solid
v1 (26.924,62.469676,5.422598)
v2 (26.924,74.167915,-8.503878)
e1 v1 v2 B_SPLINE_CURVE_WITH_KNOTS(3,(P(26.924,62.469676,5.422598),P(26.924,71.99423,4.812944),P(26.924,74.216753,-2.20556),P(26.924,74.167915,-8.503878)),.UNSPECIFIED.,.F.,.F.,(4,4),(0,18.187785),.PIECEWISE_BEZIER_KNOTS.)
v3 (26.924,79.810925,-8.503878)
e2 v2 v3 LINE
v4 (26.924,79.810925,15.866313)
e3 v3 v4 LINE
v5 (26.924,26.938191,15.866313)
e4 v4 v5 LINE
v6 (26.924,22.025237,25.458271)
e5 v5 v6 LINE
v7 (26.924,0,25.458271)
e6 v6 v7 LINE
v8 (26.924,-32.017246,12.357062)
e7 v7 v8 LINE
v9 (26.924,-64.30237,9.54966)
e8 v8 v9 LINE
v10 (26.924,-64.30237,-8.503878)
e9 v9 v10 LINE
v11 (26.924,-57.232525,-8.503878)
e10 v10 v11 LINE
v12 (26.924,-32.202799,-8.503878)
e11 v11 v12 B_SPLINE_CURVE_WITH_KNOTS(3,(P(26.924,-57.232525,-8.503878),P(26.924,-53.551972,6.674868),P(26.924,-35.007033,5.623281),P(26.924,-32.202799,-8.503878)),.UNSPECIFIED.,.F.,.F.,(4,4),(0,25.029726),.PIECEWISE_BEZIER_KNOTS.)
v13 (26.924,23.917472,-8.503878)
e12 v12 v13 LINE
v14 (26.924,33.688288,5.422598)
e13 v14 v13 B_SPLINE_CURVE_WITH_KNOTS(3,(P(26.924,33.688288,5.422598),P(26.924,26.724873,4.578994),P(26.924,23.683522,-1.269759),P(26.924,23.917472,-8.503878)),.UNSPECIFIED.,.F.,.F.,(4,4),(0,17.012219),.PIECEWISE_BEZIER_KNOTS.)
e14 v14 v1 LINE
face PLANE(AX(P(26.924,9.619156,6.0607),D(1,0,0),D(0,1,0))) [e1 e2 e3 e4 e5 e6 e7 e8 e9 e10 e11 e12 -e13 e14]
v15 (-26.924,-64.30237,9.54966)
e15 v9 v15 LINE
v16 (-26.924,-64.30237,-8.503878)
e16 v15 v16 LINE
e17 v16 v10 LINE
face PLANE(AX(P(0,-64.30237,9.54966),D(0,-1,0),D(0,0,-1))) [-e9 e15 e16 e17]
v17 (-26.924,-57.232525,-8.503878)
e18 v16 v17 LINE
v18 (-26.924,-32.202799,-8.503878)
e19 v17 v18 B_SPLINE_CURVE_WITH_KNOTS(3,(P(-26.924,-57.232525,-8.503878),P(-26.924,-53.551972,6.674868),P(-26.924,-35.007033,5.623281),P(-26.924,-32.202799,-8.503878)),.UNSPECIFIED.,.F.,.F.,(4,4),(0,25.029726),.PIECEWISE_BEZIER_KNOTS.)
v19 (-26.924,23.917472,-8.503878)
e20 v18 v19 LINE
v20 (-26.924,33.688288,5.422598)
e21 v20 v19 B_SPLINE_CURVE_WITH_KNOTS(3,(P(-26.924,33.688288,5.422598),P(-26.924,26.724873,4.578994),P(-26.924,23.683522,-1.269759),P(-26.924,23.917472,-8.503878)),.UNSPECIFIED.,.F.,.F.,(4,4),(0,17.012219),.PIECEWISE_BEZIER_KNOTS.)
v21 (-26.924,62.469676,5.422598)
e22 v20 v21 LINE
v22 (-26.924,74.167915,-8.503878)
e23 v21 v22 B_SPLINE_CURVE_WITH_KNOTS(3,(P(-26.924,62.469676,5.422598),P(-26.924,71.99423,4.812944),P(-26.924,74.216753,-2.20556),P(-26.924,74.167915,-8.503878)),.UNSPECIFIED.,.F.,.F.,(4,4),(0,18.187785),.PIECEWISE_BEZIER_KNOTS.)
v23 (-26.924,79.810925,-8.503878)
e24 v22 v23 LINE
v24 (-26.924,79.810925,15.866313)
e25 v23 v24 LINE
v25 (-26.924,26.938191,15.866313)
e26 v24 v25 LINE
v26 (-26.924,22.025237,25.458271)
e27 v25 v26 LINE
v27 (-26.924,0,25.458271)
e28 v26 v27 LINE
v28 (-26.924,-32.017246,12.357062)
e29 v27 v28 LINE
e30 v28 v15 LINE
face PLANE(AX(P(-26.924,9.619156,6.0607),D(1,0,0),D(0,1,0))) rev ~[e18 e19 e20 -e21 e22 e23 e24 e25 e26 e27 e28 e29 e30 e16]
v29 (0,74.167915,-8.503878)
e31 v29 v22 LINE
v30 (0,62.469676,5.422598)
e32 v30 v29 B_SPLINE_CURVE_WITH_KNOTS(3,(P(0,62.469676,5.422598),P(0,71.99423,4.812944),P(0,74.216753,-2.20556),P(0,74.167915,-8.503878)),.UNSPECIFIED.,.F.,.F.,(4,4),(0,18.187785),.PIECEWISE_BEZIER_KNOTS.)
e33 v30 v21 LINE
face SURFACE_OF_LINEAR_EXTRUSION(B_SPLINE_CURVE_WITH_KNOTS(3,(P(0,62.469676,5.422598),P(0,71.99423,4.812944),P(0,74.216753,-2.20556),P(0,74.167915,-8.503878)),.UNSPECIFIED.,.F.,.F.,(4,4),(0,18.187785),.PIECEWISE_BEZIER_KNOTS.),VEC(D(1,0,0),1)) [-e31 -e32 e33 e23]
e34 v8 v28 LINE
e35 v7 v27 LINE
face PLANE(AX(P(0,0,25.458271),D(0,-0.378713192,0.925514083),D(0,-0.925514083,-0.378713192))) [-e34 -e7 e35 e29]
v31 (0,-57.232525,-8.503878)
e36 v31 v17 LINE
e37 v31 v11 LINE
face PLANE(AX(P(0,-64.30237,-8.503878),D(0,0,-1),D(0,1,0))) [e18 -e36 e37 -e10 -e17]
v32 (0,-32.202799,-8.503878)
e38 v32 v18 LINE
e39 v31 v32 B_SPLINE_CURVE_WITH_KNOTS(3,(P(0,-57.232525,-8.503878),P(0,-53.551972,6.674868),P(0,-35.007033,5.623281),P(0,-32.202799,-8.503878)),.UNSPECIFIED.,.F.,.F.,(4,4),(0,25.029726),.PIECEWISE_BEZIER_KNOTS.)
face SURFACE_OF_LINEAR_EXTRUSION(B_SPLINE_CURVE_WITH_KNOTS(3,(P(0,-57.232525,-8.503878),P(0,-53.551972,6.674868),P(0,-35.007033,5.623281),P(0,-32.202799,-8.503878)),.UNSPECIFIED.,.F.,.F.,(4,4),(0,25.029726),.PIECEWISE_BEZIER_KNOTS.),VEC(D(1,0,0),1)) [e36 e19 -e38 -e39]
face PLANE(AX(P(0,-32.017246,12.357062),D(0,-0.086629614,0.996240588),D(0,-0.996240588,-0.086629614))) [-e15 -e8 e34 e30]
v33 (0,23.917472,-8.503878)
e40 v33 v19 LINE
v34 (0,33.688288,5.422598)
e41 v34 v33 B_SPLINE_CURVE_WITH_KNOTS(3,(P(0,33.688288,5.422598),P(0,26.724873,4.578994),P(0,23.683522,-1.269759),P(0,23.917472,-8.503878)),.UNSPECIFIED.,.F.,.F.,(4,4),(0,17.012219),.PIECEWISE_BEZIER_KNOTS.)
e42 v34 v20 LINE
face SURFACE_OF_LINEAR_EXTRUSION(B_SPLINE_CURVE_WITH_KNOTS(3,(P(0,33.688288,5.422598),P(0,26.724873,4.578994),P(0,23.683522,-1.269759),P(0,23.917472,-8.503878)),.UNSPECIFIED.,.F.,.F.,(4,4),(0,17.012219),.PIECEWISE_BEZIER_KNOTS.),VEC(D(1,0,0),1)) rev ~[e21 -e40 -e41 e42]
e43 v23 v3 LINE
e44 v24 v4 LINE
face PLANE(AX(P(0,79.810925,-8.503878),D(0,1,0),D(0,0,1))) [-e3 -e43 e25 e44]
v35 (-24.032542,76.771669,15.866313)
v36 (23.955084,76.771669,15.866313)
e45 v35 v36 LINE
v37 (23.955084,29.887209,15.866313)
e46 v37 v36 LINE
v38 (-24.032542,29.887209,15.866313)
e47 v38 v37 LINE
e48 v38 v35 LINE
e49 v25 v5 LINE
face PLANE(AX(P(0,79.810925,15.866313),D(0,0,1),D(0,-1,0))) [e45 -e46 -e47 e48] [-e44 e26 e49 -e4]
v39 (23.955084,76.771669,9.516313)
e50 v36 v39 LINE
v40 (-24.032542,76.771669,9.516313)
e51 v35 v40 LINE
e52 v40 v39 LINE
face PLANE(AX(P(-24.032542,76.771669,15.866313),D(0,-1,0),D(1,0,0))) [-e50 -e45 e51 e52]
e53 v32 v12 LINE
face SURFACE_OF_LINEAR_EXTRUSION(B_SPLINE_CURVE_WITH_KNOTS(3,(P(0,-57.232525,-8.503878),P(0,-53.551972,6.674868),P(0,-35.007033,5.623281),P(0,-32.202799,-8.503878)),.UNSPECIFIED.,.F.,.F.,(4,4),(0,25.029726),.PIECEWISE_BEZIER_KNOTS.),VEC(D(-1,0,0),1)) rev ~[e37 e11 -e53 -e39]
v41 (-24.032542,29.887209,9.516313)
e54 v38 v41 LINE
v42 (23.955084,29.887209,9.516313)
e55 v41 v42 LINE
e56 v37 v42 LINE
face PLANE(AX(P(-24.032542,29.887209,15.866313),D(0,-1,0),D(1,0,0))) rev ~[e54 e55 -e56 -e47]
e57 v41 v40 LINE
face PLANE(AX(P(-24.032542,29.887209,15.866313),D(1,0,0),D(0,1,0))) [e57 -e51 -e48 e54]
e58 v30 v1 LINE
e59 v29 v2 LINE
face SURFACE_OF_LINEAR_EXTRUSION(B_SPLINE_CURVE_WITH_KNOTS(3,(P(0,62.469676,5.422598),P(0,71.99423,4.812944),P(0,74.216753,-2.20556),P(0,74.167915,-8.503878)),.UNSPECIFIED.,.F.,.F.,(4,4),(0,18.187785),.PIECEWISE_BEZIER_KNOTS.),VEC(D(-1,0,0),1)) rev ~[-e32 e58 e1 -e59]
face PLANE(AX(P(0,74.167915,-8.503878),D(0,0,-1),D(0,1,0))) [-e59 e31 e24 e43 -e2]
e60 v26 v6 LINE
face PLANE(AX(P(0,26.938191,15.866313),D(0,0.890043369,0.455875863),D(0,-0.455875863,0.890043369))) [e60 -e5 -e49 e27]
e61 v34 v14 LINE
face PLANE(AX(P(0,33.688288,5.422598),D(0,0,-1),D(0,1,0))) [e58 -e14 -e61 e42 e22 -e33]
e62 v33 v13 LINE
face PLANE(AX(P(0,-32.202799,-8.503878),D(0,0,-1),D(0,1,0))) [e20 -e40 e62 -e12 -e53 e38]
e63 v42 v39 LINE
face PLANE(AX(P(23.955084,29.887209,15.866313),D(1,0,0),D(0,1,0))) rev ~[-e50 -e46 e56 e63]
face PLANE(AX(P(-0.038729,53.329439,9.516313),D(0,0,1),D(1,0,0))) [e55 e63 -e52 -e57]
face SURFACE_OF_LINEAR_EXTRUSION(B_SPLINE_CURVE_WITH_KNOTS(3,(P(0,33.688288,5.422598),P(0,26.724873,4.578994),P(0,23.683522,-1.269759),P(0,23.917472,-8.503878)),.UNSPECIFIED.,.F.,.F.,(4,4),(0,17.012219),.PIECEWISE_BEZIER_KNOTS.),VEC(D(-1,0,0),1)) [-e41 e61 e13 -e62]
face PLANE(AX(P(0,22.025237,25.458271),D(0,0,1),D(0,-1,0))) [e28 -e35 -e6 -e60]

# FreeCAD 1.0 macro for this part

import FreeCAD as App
import Part
import Sketcher

V = App.Vector
Q = App.Units.Quantity

doc = App.newDocument("Part")
body = doc.addObject("PartDesign::Body", "Body")

# Sketch on YZ plane
sketch1 = doc.addObject("Sketcher::SketchObject", "Sketch")
body.addObject(sketch1)
sketch1.AttachmentSupport = (doc.YZ_Plane, [""])
sketch1.MapMode = "FlatFace"
sketch1.addGeometry([
    Part.LineSegment(V(-64.30237, 9.54966, 0), V(-64.30237, -8.503878, 0)),  # 0
    Part.LineSegment(V(-64.30237, -8.503878, 0), V(-57.232525, -8.503878, 0)),  # 1
    Part.BSplineCurve([V(-57.232525, -8.503878, 0), V(-53.551972, 6.674868, 0), V(-35.007033, 5.623281, 0), V(-32.202799, -8.503878, 0)], [4, 4], [0, 25.029726], False, 3, [1, 1, 1, 1], False),  # 2
    Part.LineSegment(V(-32.202799, -8.503878, 0), V(23.917472, -8.503878, 0)),  # 3
    Part.BSplineCurve([V(33.688288, 5.422598, 0), V(26.724873, 4.578994, 0), V(23.683522, -1.269759, 0), V(23.917472, -8.503878, 0)], [4, 4], [0, 17.012219], False, 3, [1, 1, 1, 1], False),  # 4
    Part.LineSegment(V(33.688288, 5.422598, 0), V(62.469676, 5.422598, 0)),  # 5
    Part.BSplineCurve([V(62.469676, 5.422598, 0), V(71.99423, 4.812944, 0), V(74.216753, -2.20556, 0), V(74.167915, -8.503878, 0)], [4, 4], [0, 18.187785], False, 3, [1, 1, 1, 1], False),  # 6
    Part.LineSegment(V(74.167915, -8.503878, 0), V(79.810925, -8.503878, 0)),  # 7
    Part.LineSegment(V(79.810925, -8.503878, 0), V(79.810925, 15.866313, 0)),  # 8
    Part.LineSegment(V(79.810925, 15.866313, 0), V(26.938191, 15.866313, 0)),  # 9
    Part.LineSegment(V(26.938191, 15.866313, 0), V(22.025237, 25.458271, 0)),  # 10
    Part.LineSegment(V(22.025237, 25.458271, 0), V(0, 25.458271, 0)),  # 11
    Part.LineSegment(V(0, 25.458271, 0), V(-32.017246, 12.357062, 0)),  # 12
    Part.LineSegment(V(-32.017246, 12.357062, 0), V(-64.30237, 9.54966, 0)),  # 13
], False)
sketch1.addConstraint([
    Sketcher.Constraint("Block", 2),
    Sketcher.Constraint("Block", 4),
    Sketcher.Constraint("Block", 6),
    Sketcher.Constraint("Coincident", 0, 2, 1, 1),
    Sketcher.Constraint("Coincident", 1, 2, 2, 1),
    Sketcher.Constraint("Coincident", 2, 2, 3, 1),
    Sketcher.Constraint("Coincident", 3, 2, 4, 2),
    Sketcher.Constraint("Coincident", 4, 1, 5, 1),
    Sketcher.Constraint("Coincident", 5, 2, 6, 1),
    Sketcher.Constraint("Coincident", 6, 2, 7, 1),
    Sketcher.Constraint("Coincident", 7, 2, 8, 1),
    Sketcher.Constraint("Coincident", 8, 2, 9, 1),
    Sketcher.Constraint("Coincident", 9, 2, 10, 1),
    Sketcher.Constraint("Coincident", 10, 2, 11, 1),
    Sketcher.Constraint("Coincident", 11, 2, 12, 1),
    Sketcher.Constraint("Coincident", 12, 2, 13, 1),
    Sketcher.Constraint("Coincident", 13, 2, 0, 1),
    Sketcher.Constraint("Vertical", 0),
    Sketcher.Constraint("Horizontal", 1),
    Sketcher.Constraint("Horizontal", 7),
    Sketcher.Constraint("Vertical", 8),
    Sketcher.Constraint("Horizontal", 9),
    Sketcher.Constraint("Horizontal", 11),
    Sketcher.Constraint("PointOnObject", 11, 2, -2),
    Sketcher.Constraint("DistanceX", 7, 1, 7, 2, 5.64301),
    Sketcher.Constraint("DistanceY", 8, 1, 8, 2, 24.370191),
    Sketcher.Constraint("DistanceX", 1, 1, 1, 2, 7.069845),
    Sketcher.Constraint("DistanceX", 9, 2, 9, 1, 52.872734),
    Sketcher.Constraint("DistanceX", 11, 2, 11, 1, 22.025237),
    Sketcher.Constraint("DistanceY", 0, 2, 0, 1, 18.053538),
    Sketcher.Constraint("DistanceY", -1, 1, 10, 2, 25.458271),
    Sketcher.Constraint("DistanceX", 1, 2, 12, 2, 25.215279),
    Sketcher.Constraint("DistanceY", 1, 2, 12, 2, 20.86094),
])
pad1 = doc.addObject("PartDesign::Pad", "Pad")
body.addObject(pad1)
pad1.Profile = sketch1
pad1.Length = Q("2.12 in")
pad1.Midplane = True

# Sketch on XY plane
sketch2 = doc.addObject("Sketcher::SketchObject", "Sketch001")
body.addObject(sketch2)
sketch2.AttachmentSupport = (doc.XY_Plane, [""])
sketch2.MapMode = "FlatFace"
sketch2.AttachmentOffset = App.Placement(V(0, 0, 15.866313), App.Rotation())
sketch2.addGeometry([
    Part.LineSegment(V(-24, 77, 0), V(-24, 30, 0)),
    Part.LineSegment(V(-24, 30, 0), V(24, 30, 0)),
    Part.LineSegment(V(24, 30, 0), V(24, 77, 0)),
    Part.LineSegment(V(24, 77, 0), V(-24, 77, 0)),
], False)
sketch2.addConstraint([
    Sketcher.Constraint("Coincident", 0, 2, 1, 1),
    Sketcher.Constraint("Coincident", 1, 2, 2, 1),
    Sketcher.Constraint("Coincident", 2, 2, 3, 1),
    Sketcher.Constraint("Coincident", 3, 2, 0, 1),
    Sketcher.Constraint("Vertical", 0),
    Sketcher.Constraint("Horizontal", 1),
    Sketcher.Constraint("Vertical", 2),
    Sketcher.Constraint("Horizontal", 3),
    Sketcher.Constraint("DistanceY", 0, 2, 0, 1, 46.88446),
    Sketcher.Constraint("DistanceX", 1, 1, 1, 2, 47.987626),
    Sketcher.Constraint("DistanceX", 0, 2, -1, 1, 24.032542),
    Sketcher.Constraint("DistanceY", -1, 1, 0, 2, 29.887209),
])
pocket1 = doc.addObject("PartDesign::Pocket", "Pocket")
body.addObject(pocket1)
pocket1.Profile = sketch2
pocket1.Length = Q("0.25 in")

doc.recompute()
